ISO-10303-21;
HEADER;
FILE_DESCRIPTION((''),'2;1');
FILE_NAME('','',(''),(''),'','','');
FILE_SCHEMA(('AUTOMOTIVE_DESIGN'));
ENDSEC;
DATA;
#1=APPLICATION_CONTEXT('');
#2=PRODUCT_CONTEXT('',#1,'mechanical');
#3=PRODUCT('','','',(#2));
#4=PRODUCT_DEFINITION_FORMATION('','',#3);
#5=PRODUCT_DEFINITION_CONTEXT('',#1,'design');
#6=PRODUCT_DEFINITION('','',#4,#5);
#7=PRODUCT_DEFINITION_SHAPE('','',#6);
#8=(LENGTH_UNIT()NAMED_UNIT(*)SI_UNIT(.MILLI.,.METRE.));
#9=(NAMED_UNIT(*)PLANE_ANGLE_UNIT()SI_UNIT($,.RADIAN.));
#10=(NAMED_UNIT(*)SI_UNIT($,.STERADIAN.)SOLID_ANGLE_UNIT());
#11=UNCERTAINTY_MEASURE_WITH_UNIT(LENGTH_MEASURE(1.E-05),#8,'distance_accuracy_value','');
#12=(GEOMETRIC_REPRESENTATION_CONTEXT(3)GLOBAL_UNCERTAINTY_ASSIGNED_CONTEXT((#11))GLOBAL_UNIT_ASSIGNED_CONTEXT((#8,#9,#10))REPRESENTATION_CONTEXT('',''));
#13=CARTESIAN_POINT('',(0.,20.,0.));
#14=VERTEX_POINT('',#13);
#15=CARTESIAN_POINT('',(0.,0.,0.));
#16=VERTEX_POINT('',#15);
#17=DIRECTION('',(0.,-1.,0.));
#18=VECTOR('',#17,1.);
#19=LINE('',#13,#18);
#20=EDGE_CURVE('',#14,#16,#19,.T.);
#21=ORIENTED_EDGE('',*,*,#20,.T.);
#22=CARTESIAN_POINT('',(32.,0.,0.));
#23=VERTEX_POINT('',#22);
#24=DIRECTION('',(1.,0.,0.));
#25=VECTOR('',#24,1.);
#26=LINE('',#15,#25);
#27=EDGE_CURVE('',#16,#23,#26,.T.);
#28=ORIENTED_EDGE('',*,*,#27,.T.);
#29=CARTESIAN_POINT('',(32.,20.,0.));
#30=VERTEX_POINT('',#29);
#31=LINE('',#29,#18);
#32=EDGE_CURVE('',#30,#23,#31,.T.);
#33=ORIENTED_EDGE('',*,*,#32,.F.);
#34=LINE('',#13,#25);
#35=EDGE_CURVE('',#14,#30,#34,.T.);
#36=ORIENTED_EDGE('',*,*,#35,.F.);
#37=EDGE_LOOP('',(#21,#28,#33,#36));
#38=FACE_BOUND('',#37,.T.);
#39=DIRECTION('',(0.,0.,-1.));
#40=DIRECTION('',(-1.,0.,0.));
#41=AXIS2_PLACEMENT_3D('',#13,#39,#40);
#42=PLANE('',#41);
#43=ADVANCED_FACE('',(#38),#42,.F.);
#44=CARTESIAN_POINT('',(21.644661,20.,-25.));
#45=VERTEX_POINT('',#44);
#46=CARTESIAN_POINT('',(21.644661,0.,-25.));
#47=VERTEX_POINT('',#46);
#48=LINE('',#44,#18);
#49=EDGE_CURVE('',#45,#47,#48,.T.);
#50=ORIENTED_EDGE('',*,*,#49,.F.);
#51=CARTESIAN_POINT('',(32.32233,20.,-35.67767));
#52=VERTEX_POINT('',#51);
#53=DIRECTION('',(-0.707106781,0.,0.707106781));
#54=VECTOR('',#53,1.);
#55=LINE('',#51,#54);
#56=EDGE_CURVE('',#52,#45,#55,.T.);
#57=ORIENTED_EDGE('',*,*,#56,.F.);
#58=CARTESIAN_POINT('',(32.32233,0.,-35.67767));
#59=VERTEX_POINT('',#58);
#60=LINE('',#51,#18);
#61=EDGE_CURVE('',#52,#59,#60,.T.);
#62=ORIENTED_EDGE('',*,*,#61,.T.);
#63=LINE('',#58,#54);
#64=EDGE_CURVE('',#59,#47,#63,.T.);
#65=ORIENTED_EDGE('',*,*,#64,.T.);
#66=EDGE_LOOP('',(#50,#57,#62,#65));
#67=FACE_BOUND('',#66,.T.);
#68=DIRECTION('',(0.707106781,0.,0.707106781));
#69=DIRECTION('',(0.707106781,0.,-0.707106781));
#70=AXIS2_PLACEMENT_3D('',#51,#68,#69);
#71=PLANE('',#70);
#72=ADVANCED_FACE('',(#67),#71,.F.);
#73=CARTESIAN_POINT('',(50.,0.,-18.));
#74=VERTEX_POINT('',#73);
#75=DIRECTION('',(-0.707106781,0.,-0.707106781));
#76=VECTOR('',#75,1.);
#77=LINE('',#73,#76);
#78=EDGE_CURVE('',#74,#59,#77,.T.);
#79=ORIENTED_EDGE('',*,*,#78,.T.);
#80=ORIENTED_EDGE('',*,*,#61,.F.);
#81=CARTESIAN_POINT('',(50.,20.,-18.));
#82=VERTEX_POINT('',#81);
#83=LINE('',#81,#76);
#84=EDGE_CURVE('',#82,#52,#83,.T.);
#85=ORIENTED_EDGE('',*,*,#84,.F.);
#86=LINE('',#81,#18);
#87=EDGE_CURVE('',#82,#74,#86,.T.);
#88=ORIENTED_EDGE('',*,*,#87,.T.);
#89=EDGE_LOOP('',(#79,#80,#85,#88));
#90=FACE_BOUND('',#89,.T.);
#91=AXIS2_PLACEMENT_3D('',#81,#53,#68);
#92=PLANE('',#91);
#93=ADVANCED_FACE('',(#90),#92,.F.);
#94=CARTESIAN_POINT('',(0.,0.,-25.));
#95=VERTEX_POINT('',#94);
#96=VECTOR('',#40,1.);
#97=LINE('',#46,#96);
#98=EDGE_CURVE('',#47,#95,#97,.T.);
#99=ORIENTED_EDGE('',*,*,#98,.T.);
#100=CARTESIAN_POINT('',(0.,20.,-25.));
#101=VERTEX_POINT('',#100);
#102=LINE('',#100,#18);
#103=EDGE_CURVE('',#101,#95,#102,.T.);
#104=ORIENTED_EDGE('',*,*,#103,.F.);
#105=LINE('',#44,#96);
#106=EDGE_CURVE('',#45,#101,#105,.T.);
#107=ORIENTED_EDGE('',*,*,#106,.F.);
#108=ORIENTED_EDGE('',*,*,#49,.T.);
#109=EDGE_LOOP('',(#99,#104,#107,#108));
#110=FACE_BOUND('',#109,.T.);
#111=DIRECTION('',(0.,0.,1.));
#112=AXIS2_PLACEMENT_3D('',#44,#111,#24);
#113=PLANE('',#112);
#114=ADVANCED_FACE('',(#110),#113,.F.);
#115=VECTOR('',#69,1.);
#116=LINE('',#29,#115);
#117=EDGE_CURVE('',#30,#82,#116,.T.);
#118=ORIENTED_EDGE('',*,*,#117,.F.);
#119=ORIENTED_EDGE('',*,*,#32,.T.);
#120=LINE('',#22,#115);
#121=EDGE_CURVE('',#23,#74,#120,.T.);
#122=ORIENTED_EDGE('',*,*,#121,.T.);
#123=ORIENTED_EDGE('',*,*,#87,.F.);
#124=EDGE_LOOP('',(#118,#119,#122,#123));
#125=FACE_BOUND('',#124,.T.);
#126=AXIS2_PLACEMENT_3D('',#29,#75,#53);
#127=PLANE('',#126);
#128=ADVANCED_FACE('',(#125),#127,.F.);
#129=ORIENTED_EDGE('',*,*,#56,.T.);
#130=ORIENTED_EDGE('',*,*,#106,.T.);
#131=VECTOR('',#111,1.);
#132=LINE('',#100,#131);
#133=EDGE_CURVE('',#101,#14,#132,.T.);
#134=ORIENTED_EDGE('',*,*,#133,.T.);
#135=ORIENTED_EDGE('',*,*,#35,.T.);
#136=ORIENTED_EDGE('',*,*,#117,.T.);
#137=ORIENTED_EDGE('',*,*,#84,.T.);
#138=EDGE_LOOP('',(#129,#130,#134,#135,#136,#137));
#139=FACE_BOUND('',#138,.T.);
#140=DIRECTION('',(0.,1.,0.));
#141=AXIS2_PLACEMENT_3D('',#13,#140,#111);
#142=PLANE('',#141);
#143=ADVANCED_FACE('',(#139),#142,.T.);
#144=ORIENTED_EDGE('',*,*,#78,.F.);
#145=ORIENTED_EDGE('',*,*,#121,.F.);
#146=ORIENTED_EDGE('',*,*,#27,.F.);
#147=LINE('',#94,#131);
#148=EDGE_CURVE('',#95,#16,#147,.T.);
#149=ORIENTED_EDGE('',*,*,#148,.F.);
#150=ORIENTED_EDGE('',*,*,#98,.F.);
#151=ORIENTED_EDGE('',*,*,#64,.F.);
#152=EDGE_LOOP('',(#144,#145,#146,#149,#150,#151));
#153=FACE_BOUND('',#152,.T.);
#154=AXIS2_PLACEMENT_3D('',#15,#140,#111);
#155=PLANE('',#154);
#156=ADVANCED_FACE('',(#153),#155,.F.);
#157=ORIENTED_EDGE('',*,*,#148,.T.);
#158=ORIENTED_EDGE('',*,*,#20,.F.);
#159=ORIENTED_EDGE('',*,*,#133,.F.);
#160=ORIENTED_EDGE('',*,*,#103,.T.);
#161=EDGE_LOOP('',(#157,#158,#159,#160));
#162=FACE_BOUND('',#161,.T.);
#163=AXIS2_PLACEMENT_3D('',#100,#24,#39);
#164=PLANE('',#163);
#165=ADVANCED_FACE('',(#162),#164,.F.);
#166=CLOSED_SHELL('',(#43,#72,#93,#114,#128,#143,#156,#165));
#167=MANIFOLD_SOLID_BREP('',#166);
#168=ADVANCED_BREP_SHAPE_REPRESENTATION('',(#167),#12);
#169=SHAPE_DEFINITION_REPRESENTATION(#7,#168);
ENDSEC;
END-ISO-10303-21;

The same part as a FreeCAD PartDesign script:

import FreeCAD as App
import Part
import Sketcher
Q = App.Units.Quantity

doc = App.newDocument("Part")
body = doc.addObject("PartDesign::Body", "Body")

sketch1 = body.newObject("Sketcher::SketchObject", "Sketch")
sketch1.AttachmentSupport = (doc.getObject("XZ_Plane"), [""])
sketch1.MapMode = "FlatFace"
sketch1.addGeometry([
    Part.LineSegment(App.Vector(0, 0, 0), App.Vector(32, 0, 0)),
    Part.LineSegment(App.Vector(32, 0, 0), App.Vector(50, -18, 0)),
    Part.LineSegment(App.Vector(50, -18, 0), App.Vector(32.32233, -35.67767, 0)),
    Part.LineSegment(App.Vector(32.32233, -35.67767, 0), App.Vector(21.644661, -25, 0)),
    Part.LineSegment(App.Vector(21.644661, -25, 0), App.Vector(0, -25, 0)),
    Part.LineSegment(App.Vector(0, -25, 0), App.Vector(0, 0, 0)),
], False)
sketch1.addConstraint([
    Sketcher.Constraint("Coincident", 0, 2, 1, 1),
    Sketcher.Constraint("Coincident", 1, 2, 2, 1),
    Sketcher.Constraint("Coincident", 2, 2, 3, 1),
    Sketcher.Constraint("Coincident", 3, 2, 4, 1),
    Sketcher.Constraint("Coincident", 4, 2, 5, 1),
    Sketcher.Constraint("Coincident", 5, 2, 0, 1),
    Sketcher.Constraint("Horizontal", 0),
    Sketcher.Constraint("Horizontal", 4),
    Sketcher.Constraint("Vertical", 5),
    Sketcher.Constraint("Coincident", 5, 2, -1, 1),
    Sketcher.Constraint("Perpendicular", 1, 2),
    Sketcher.Constraint("Perpendicular", 2, 3),
    Sketcher.Constraint("DistanceX", 0, 1, 0, 2, Q("32 mm")),
    Sketcher.Constraint("DistanceY", 5, 1, 5, 2, Q("25 mm")),
    Sketcher.Constraint("Angle", 1, Q("-45 deg")),
    Sketcher.Constraint("Distance", 2, Q("25 mm")),
    Sketcher.Constraint("DistanceX", -1, 1, 1, 2, Q("50 mm")),
])
pad1 = body.newObject("PartDesign::Pad", "Pad")
pad1.Profile = sketch1
pad1.Length = 20
pad1.Reversed = True

doc.recompute()
